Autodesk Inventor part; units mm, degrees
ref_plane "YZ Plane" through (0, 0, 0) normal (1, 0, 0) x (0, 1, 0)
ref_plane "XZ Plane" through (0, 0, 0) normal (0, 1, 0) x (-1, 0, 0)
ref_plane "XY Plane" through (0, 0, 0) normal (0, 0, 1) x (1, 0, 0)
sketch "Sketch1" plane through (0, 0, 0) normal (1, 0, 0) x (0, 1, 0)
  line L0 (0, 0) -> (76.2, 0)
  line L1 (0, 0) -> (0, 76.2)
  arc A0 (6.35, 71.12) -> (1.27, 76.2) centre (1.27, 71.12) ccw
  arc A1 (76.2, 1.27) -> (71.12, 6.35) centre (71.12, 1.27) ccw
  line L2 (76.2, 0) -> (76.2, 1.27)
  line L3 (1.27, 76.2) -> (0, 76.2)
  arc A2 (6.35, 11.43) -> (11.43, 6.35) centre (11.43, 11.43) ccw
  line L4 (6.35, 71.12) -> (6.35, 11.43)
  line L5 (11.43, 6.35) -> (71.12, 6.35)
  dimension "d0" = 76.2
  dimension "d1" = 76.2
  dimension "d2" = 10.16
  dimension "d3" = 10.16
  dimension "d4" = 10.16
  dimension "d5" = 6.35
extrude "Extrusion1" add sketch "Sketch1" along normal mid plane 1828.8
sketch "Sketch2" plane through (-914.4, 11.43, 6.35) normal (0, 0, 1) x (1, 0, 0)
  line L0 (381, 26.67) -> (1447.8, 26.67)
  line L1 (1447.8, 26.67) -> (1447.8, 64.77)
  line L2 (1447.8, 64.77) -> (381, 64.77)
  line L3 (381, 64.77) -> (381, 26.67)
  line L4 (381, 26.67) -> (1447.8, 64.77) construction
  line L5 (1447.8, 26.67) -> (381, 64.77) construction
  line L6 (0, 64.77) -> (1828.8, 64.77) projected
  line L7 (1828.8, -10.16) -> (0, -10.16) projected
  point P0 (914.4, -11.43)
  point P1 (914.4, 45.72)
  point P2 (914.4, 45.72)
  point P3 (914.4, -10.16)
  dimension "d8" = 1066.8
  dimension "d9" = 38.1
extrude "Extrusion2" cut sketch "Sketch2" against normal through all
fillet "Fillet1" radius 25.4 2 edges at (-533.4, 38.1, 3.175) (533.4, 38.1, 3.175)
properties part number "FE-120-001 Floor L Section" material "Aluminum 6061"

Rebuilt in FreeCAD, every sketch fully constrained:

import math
import FreeCAD as App
import Part
import Sketcher
Q = App.Units.Quantity


def edges_at(feature, points):
    """Names of the edges that pass closest to the given points."""
    edges = feature.Shape.Edges
    near = lambda p: min(range(len(edges)), key=lambda i: edges[i].distToShape(Part.Vertex(*p))[0])
    return sorted({f"Edge{near(p) + 1}" for p in points})

doc = App.newDocument("Part")
body = doc.addObject("PartDesign::Body", "Body")

# Sketch on YZ plane
sketch1 = body.newObject("Sketcher::SketchObject", "Sketch")
sketch1.AttachmentSupport = (doc.getObject("YZ_Plane"), [""])
sketch1.MapMode = "FlatFace"
sketch1.addGeometry([
    Part.LineSegment(App.Vector(0, 76.2, 0), App.Vector(0, 0, 0)),  # 0
    Part.LineSegment(App.Vector(0, 0, 0), App.Vector(76.2, 0, 0)),  # 1
    Part.LineSegment(App.Vector(76.2, 0, 0), App.Vector(76.2, 1.3, 0)),  # 2
    Part.ArcOfCircle(Part.Circle(App.Vector(71.1, 1.3, 0), App.Vector(0, 0, 1), 5.1), math.radians(0), math.radians(90)),  # 3
    Part.LineSegment(App.Vector(71.1, 6.3, 0), App.Vector(11.4, 6.3, 0)),  # 4
    Part.ArcOfCircle(Part.Circle(App.Vector(11.4, 11.4, 0), App.Vector(0, 0, 1), 5.1), math.radians(180), math.radians(270)),  # 5
    Part.LineSegment(App.Vector(6.3, 11.4, 0), App.Vector(6.3, 71.1, 0)),  # 6
    Part.ArcOfCircle(Part.Circle(App.Vector(1.3, 71.1, 0), App.Vector(0, 0, 1), 5.1), math.radians(0), math.radians(90)),  # 7
    Part.LineSegment(App.Vector(1.3, 76.2, 0), App.Vector(0, 76.2, 0)),  # 8
], False)
sketch1.addConstraint([
    Sketcher.Constraint("Coincident", 0, 2, 1, 1),
    Sketcher.Constraint("Coincident", 1, 2, 2, 1),
    Sketcher.Constraint("Tangent", 2, 2, 3, 1),
    Sketcher.Constraint("Tangent", 3, 2, 4, 1),
    Sketcher.Constraint("Tangent", 4, 2, 5, 2),
    Sketcher.Constraint("Tangent", 5, 1, 6, 1),
    Sketcher.Constraint("Tangent", 6, 2, 7, 1),
    Sketcher.Constraint("Tangent", 7, 2, 8, 1),
    Sketcher.Constraint("Coincident", 8, 2, 0, 1),
    Sketcher.Constraint("Vertical", 0),
    Sketcher.Constraint("Horizontal", 1),
    Sketcher.Constraint("Vertical", 2),
    Sketcher.Constraint("Horizontal", 4),
    Sketcher.Constraint("Vertical", 6),
    Sketcher.Constraint("Horizontal", 8),
    Sketcher.Constraint("Coincident", 0, 2, -1, 1),
    Sketcher.Constraint("Equal", 3, 5),
    Sketcher.Constraint("Equal", 5, 7),
    Sketcher.Constraint("Equal", 1, 0),
    Sketcher.Constraint("Equal", 8, 2),
    Sketcher.Constraint("Radius", 3, Q("0.2 in")),
    Sketcher.Constraint("DistanceX", 1, 1, 1, 2, Q("3 in")),
    Sketcher.Constraint("DistanceY", -1, 1, 3, 2, Q("0.25 in")),
])
pad1 = body.newObject("PartDesign::Pad", "Pad")
pad1.Profile = sketch1
pad1.Length = Q("72 in")
pad1.Midplane = True

# Sketch on XY plane
sketch2 = body.newObject("Sketcher::SketchObject", "Sketch001")
sketch2.AttachmentSupport = (doc.getObject("XY_Plane"), [""])
sketch2.MapMode = "FlatFace"
sketch2.AttachmentOffset = App.Placement(App.Vector(0, 0, 0.25 * 25.4), App.Rotation())
sketch2.addGeometry([
    Part.LineSegment(App.Vector(-533, 76, 0), App.Vector(-533, 38, 0)),
    Part.LineSegment(App.Vector(-533, 38, 0), App.Vector(533, 38, 0)),
    Part.LineSegment(App.Vector(533, 38, 0), App.Vector(533, 76, 0)),
    Part.LineSegment(App.Vector(533, 76, 0), App.Vector(-533, 76, 0)),
], False)
sketch2.addConstraint([
    Sketcher.Constraint("Coincident", 0, 2, 1, 1),
    Sketcher.Constraint("Coincident", 1, 2, 2, 1),
    Sketcher.Constraint("Coincident", 2, 2, 3, 1),
    Sketcher.Constraint("Coincident", 3, 2, 0, 1),
    Sketcher.Constraint("Vertical", 0),
    Sketcher.Constraint("Horizontal", 1),
    Sketcher.Constraint("Vertical", 2),
    Sketcher.Constraint("Horizontal", 3),
    Sketcher.Constraint("DistanceX", 1, 1, 1, 2, Q("42 in")),
    Sketcher.Constraint("DistanceY", 0, 2, 0, 1, Q("1.5 in")),
    Sketcher.Constraint("DistanceY", -1, 1, 0, 2, Q("1.5 in")),
    Sketcher.Constraint("DistanceX", 0, 2, -1, 1, Q("21 in")),
])
pocket1 = body.newObject("PartDesign::Pocket", "Pocket")
pocket1.Profile = sketch2
pocket1.Type = "ThroughAll"
doc.recompute()

fillet = body.newObject("PartDesign::Fillet", "Fillet")
fillet.Base = (pocket1, edges_at(pocket1, [(-533.4, 38.1, 3.175), (533.4, 38.1, 3.175)]))
fillet.Radius = Q("1 in")

doc.recompute()
